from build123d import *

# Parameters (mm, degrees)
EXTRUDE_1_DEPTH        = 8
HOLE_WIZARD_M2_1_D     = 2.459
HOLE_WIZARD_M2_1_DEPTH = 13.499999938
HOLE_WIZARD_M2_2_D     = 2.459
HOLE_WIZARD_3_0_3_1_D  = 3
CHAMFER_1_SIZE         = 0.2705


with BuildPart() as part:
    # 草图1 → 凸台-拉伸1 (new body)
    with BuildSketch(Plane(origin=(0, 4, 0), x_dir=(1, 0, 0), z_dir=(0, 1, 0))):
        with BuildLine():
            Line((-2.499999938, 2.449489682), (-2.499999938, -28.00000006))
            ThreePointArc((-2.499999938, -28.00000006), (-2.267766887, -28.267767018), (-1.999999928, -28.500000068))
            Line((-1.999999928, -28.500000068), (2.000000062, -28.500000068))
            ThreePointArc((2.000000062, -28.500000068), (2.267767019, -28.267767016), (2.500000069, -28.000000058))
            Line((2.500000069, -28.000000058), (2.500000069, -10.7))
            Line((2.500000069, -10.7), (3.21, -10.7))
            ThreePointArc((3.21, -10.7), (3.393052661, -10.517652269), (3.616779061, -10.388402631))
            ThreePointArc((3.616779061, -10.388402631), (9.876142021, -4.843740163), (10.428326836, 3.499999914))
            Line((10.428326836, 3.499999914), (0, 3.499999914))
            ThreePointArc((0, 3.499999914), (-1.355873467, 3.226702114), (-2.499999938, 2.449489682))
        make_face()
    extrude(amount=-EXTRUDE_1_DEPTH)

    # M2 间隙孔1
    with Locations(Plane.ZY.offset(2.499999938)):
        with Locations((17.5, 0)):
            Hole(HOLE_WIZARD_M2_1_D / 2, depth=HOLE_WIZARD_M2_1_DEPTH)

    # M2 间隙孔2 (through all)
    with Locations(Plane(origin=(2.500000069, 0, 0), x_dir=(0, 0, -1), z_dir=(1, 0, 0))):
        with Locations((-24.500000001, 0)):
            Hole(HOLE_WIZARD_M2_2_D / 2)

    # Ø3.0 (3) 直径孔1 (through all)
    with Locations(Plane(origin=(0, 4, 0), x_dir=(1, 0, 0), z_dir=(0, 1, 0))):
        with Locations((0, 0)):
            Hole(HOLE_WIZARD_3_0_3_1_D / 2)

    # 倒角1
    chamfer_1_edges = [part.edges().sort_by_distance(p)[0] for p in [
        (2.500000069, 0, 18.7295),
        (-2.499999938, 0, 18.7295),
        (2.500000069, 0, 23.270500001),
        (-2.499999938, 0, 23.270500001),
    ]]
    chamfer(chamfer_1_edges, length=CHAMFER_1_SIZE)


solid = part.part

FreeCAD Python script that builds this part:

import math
import FreeCAD as App
import Part
import Sketcher

V = App.Vector


def edges_at(feature, points):
    """Names of the edges that pass closest to the given points."""
    edges = feature.Shape.Edges
    near = lambda p: min(range(len(edges)), key=lambda i: edges[i].distToShape(Part.Vertex(*p))[0])
    return sorted({f"Edge{near(p) + 1}" for p in points})

doc = App.newDocument("Part")
body = doc.addObject("PartDesign::Body", "Body")

# Sketch on XZ plane
sketch1 = body.newObject("Sketcher::SketchObject", "Sketch")
sketch1.AttachmentSupport = (doc.getObject("XZ_Plane"), [""])
sketch1.MapMode = "FlatFace"
sketch1.AttachmentOffset = App.Placement(V(0, 0, -4), App.Rotation())
sketch1.addGeometry([
    Part.LineSegment(V(-2.5, -2.4, 0), V(-2.5, 28, 0)),  # 0
    Part.ArcOfCircle(Part.Circle(V(-0.5, 26.5, 0), V(0, 0, 1), 2.5), math.radians(126.87), math.radians(143.13)),  # 1
    Part.LineSegment(V(-2, 28.5, 0), V(2, 28.5, 0)),  # 2
    Part.ArcOfCircle(Part.Circle(V(0.5, 26.5, 0), V(0, 0, 1), 2.5), math.radians(36.87), math.radians(53.13)),  # 3
    Part.LineSegment(V(2.5, 28, 0), V(2.5, 10.7, 0)),  # 4
    Part.LineSegment(V(2.5, 10.7, 0), V(3.2, 10.7, 0)),  # 5
    Part.ArcOfCircle(Part.Circle(V(4, 11.3, 0), V(0, 0, 1), 1), math.radians(-142), math.radians(-113)),  # 6
    Part.ArcOfCircle(Part.Circle(V(0, 0, 0), V(0, 0, 1), 11), math.radians(-19), math.radians(71)),  # 7
    Part.LineSegment(V(10.4, -3.5, 0), V(0, -3.5, 0)),  # 8
    Part.ArcOfCircle(Part.Circle(V(0, 0, 0), V(0, 0, 1), 3.5), math.radians(-136), math.radians(-90)),  # 9
], False)
sketch1.addConstraint([
    Sketcher.Constraint("Coincident", 0, 2, 1, 2),
    Sketcher.Constraint("Coincident", 1, 1, 2, 1),
    Sketcher.Constraint("Coincident", 2, 2, 3, 2),
    Sketcher.Constraint("Coincident", 3, 1, 4, 1),
    Sketcher.Constraint("Coincident", 4, 2, 5, 1),
    Sketcher.Constraint("Coincident", 5, 2, 6, 1),
    Sketcher.Constraint("Coincident", 6, 2, 7, 2),
    Sketcher.Constraint("Coincident", 7, 1, 8, 1),
    Sketcher.Constraint("Tangent", 8, 2, 9, 2),
    Sketcher.Constraint("Coincident", 9, 1, 0, 1),
    Sketcher.Constraint("Vertical", 0),
    Sketcher.Constraint("Horizontal", 2),
    Sketcher.Constraint("Vertical", 4),
    Sketcher.Constraint("Horizontal", 5),
    Sketcher.Constraint("Horizontal", 8),
    Sketcher.Constraint("Coincident", 7, 3, -1, 1),
    Sketcher.Constraint("Coincident", 9, 3, -1, 1),
    Sketcher.Constraint("Equal", 1, 3),
    Sketcher.Constraint("Symmetric", 1, 3, 3, 3, -2),
    Sketcher.Constraint("Horizontal", 0, 2, 3, 1),
    Sketcher.Constraint("Radius", 7, 11.0),
    Sketcher.Constraint("Radius", 1, 2.5),
    Sketcher.Constraint("Radius", 9, 3.5),
    Sketcher.Constraint("DistanceX", 2, 1, 2, 2, 4.0),
    Sketcher.Constraint("DistanceY", 4, 2, 4, 1, 17.3),
    Sketcher.Constraint("DistanceX", -1, 1, 6, 3, 4.0),
    Sketcher.Constraint("DistanceY", -1, 1, 0, 2, 28.0),
    Sketcher.Constraint("DistanceX", 1, 3, 3, 3, 1.0),
    Sketcher.Constraint("DistanceX", 0, 2, 1, 3, 2.0),
    Sketcher.Constraint("DistanceX", 5, 1, 5, 2, 0.71),
    Sketcher.Constraint("Radius", 6, 0.998098),
])
pad1 = body.newObject("PartDesign::Pad", "Pad")
pad1.Profile = sketch1
pad1.Length = 8

# Sketch on YZ plane
sketch2 = body.newObject("Sketcher::SketchObject", "Sketch001")
sketch2.AttachmentSupport = (doc.getObject("YZ_Plane"), [""])
sketch2.MapMode = "FlatFace"
sketch2.AttachmentOffset = App.Placement(V(0, 0, -2.5), App.Rotation())
sketch2.addGeometry(Part.Circle(V(0, 17.5, 0), V(0, 0, 1), 1.2), False)
sketch2.addConstraint([
    Sketcher.Constraint("PointOnObject", 0, 3, -2),
    Sketcher.Constraint("Diameter", 0, 2.459),
    Sketcher.Constraint("DistanceY", -1, 1, 0, 3, 17.5),
])
doc.recompute()
hole = body.newObject("PartDesign::Hole", "Hole")
hole.Profile = sketch2
hole.ThreadType = "None"
hole.Diameter = 2.459
hole.DepthType = "Dimension"
hole.Depth = 13.5
hole.DrillPoint = "Flat"
hole.Reversed = True

# Sketch on YZ plane
sketch3 = body.newObject("Sketcher::SketchObject", "Sketch002")
sketch3.AttachmentSupport = (doc.getObject("YZ_Plane"), [""])
sketch3.MapMode = "FlatFace"
sketch3.AttachmentOffset = App.Placement(V(0, 0, 2.5), App.Rotation())
sketch3.addGeometry(Part.Circle(V(0, 24.5, 0), V(0, 0, 1), 1.2), False)
sketch3.addConstraint([
    Sketcher.Constraint("PointOnObject", 0, 3, -2),
    Sketcher.Constraint("Diameter", 0, 2.459),
    Sketcher.Constraint("DistanceY", -1, 1, 0, 3, 24.5),
])
doc.recompute()
hole2 = body.newObject("PartDesign::Hole", "Hole001")
hole2.Profile = sketch3
hole2.ThreadType = "None"
hole2.Diameter = 2.459
hole2.DepthType = "ThroughAll"

# Sketch on XZ plane
sketch4 = body.newObject("Sketcher::SketchObject", "Sketch003")
sketch4.AttachmentSupport = (doc.getObject("XZ_Plane"), [""])
sketch4.MapMode = "FlatFace"
sketch4.AttachmentOffset = App.Placement(V(0, 0, -4), App.Rotation())
sketch4.addGeometry(Part.Circle(V(0, 0, 0), V(0, 0, 1), 1.5), False)
sketch4.addConstraint([
    Sketcher.Constraint("Coincident", 0, 3, -1, 1),
    Sketcher.Constraint("Diameter", 0, 3.0),
])
doc.recompute()
hole3 = body.newObject("PartDesign::Hole", "Hole002")
hole3.Profile = sketch4
hole3.ThreadType = "None"
hole3.Diameter = 3
hole3.DepthType = "ThroughAll"
hole3.Reversed = True
doc.recompute()

chamfer = body.newObject("PartDesign::Chamfer", "Chamfer")
chamfer.Base = (hole3, edges_at(hole3, [
    (2.5, 0, 18.73),
    (-2.5, 0, 18.73),
    (2.5, 0, 23.271),
    (-2.5, 0, 23.271),
]))
chamfer.Size = 0.2705

doc.recompute()
